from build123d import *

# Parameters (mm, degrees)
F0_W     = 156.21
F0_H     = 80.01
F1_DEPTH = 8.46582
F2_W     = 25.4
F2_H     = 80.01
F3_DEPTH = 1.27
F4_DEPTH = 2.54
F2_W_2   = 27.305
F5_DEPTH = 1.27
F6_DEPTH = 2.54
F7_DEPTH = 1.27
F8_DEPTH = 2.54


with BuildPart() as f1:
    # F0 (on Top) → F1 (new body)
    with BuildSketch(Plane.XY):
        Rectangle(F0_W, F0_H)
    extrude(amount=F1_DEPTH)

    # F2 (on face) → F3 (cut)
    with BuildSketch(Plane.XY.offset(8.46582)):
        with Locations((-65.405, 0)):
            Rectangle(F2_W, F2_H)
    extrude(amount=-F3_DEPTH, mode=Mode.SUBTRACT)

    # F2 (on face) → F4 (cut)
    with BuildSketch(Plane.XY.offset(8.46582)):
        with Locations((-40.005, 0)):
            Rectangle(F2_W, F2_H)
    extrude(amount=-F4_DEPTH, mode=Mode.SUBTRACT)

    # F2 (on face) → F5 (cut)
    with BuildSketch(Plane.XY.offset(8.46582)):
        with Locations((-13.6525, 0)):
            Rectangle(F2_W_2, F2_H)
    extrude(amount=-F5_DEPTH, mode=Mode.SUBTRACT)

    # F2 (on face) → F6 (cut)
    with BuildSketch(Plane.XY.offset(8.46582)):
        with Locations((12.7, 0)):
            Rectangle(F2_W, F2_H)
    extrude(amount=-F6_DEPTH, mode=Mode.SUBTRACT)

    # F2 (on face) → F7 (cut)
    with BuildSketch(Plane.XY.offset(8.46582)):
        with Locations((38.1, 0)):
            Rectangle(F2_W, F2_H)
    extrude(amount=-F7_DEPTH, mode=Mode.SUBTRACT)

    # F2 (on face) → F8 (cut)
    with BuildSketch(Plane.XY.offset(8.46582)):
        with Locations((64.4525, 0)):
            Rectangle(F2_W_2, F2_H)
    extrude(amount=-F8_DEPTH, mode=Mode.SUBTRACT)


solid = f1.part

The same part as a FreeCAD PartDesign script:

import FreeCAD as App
import Part
import Sketcher
from FreeCAD import Vector
Q = App.Units.Quantity

doc = App.newDocument("Part")
body = doc.addObject("PartDesign::Body", "Body")

# Sketch on XY plane
sketch1 = doc.addObject("Sketcher::SketchObject", "Sketch")
body.addObject(sketch1)
sketch1.AttachmentSupport = (doc.XY_Plane, [""])
sketch1.MapMode = "FlatFace"
sketch1.addGeometry([
    Part.LineSegment(Vector(-78, 40, 0), Vector(-78, -40, 0)),
    Part.LineSegment(Vector(-78, -40, 0), Vector(78, -40, 0)),
    Part.LineSegment(Vector(78, -40, 0), Vector(78, 40, 0)),
    Part.LineSegment(Vector(78, 40, 0), Vector(-78, 40, 0)),
], False)
sketch1.addConstraint([
    Sketcher.Constraint("Coincident", 0, 2, 1, 1),
    Sketcher.Constraint("Coincident", 1, 2, 2, 1),
    Sketcher.Constraint("Coincident", 2, 2, 3, 1),
    Sketcher.Constraint("Coincident", 3, 2, 0, 1),
    Sketcher.Constraint("Vertical", 0),
    Sketcher.Constraint("Horizontal", 1),
    Sketcher.Constraint("Vertical", 2),
    Sketcher.Constraint("Horizontal", 3),
    Sketcher.Constraint("Symmetric", 0, 2, 2, 2, -1, 1),
    Sketcher.Constraint("DistanceX", 1, 1, 1, 2, Q("6.15 in")),
    Sketcher.Constraint("DistanceY", 0, 2, 0, 1, Q("3.15 in")),
])
pad1 = doc.addObject("PartDesign::Pad", "Pad")
body.addObject(pad1)
pad1.Profile = sketch1
pad1.Length = Q("0.3333 in")

# Sketch on XY plane
sketch2 = doc.addObject("Sketcher::SketchObject", "Sketch001")
body.addObject(sketch2)
sketch2.AttachmentSupport = (doc.XY_Plane, [""])
sketch2.MapMode = "FlatFace"
sketch2.AttachmentOffset = App.Placement(Vector(0, 0, 0.3333 * 25.4), App.Rotation())
sketch2.addGeometry([
    Part.LineSegment(Vector(-78, 40, 0), Vector(-78, -40, 0)),
    Part.LineSegment(Vector(-78, -40, 0), Vector(-53, -40, 0)),
    Part.LineSegment(Vector(-53, -40, 0), Vector(-53, 40, 0)),
    Part.LineSegment(Vector(-53, 40, 0), Vector(-78, 40, 0)),
], False)
sketch2.addConstraint([
    Sketcher.Constraint("Coincident", 0, 2, 1, 1),
    Sketcher.Constraint("Coincident", 1, 2, 2, 1),
    Sketcher.Constraint("Coincident", 2, 2, 3, 1),
    Sketcher.Constraint("Coincident", 3, 2, 0, 1),
    Sketcher.Constraint("Vertical", 0),
    Sketcher.Constraint("Horizontal", 1),
    Sketcher.Constraint("Vertical", 2),
    Sketcher.Constraint("Horizontal", 3),
    Sketcher.Constraint("DistanceX", 1, 1, 1, 2, Q("1 in")),
    Sketcher.Constraint("DistanceY", 0, 2, 0, 1, Q("3.15 in")),
    Sketcher.Constraint("DistanceX", 0, 2, -1, 1, Q("3.075 in")),
    Sketcher.Constraint("DistanceY", 0, 2, -1, 1, Q("1.575 in")),
])
pocket1 = doc.addObject("PartDesign::Pocket", "Pocket")
body.addObject(pocket1)
pocket1.Profile = sketch2
pocket1.Length = Q("0.05 in")

# Sketch on XY plane
sketch3 = doc.addObject("Sketcher::SketchObject", "Sketch002")
body.addObject(sketch3)
sketch3.AttachmentSupport = (doc.XY_Plane, [""])
sketch3.MapMode = "FlatFace"
sketch3.AttachmentOffset = App.Placement(Vector(0, 0, 0.3333 * 25.4), App.Rotation())
sketch3.addGeometry([
    Part.LineSegment(Vector(-53, 40, 0), Vector(-53, -40, 0)),
    Part.LineSegment(Vector(-53, -40, 0), Vector(-27, -40, 0)),
    Part.LineSegment(Vector(-27, -40, 0), Vector(-27, 40, 0)),
    Part.LineSegment(Vector(-27, 40, 0), Vector(-53, 40, 0)),
], False)
sketch3.addConstraint([
    Sketcher.Constraint("Coincident", 0, 2, 1, 1),
    Sketcher.Constraint("Coincident", 1, 2, 2, 1),
    Sketcher.Constraint("Coincident", 2, 2, 3, 1),
    Sketcher.Constraint("Coincident", 3, 2, 0, 1),
    Sketcher.Constraint("Vertical", 0),
    Sketcher.Constraint("Horizontal", 1),
    Sketcher.Constraint("Vertical", 2),
    Sketcher.Constraint("Horizontal", 3),
    Sketcher.Constraint("DistanceX", 1, 1, 1, 2, Q("1 in")),
    Sketcher.Constraint("DistanceY", 0, 2, 0, 1, Q("3.15 in")),
    Sketcher.Constraint("DistanceX", 0, 2, -1, 1, Q("2.075 in")),
    Sketcher.Constraint("DistanceY", 0, 2, -1, 1, Q("1.575 in")),
])
pocket2 = doc.addObject("PartDesign::Pocket", "Pocket001")
body.addObject(pocket2)
pocket2.Profile = sketch3
pocket2.Length = Q("0.1 in")

# Sketch on XY plane
sketch4 = doc.addObject("Sketcher::SketchObject", "Sketch003")
body.addObject(sketch4)
sketch4.AttachmentSupport = (doc.XY_Plane, [""])
sketch4.MapMode = "FlatFace"
sketch4.AttachmentOffset = App.Placement(Vector(0, 0, 0.3333 * 25.4), App.Rotation())
sketch4.addGeometry([
    Part.LineSegment(Vector(-27, 40, 0), Vector(-27, -40, 0)),
    Part.LineSegment(Vector(-27, -40, 0), Vector(0, -40, 0)),
    Part.LineSegment(Vector(0, -40, 0), Vector(0, 40, 0)),
    Part.LineSegment(Vector(0, 40, 0), Vector(-27, 40, 0)),
], False)
sketch4.addConstraint([
    Sketcher.Constraint("Coincident", 0, 2, 1, 1),
    Sketcher.Constraint("Coincident", 1, 2, 2, 1),
    Sketcher.Constraint("Coincident", 2, 2, 3, 1),
    Sketcher.Constraint("Coincident", 3, 2, 0, 1),
    Sketcher.Constraint("Vertical", 0),
    Sketcher.Constraint("Horizontal", 1),
    Sketcher.Constraint("Vertical", 2),
    Sketcher.Constraint("Horizontal", 3),
    Sketcher.Constraint("Symmetric", 1, 2, 2, 2, -1, 1),
    Sketcher.Constraint("DistanceY", 0, 2, 0, 1, Q("3.15 in")),
    Sketcher.Constraint("DistanceX", 1, 1, 1, 2, Q("1.075 in")),
])
pocket3 = doc.addObject("PartDesign::Pocket", "Pocket002")
body.addObject(pocket3)
pocket3.Profile = sketch4
pocket3.Length = Q("0.05 in")

# Sketch on XY plane
sketch5 = doc.addObject("Sketcher::SketchObject", "Sketch004")
body.addObject(sketch5)
sketch5.AttachmentSupport = (doc.XY_Plane, [""])
sketch5.MapMode = "FlatFace"
sketch5.AttachmentOffset = App.Placement(Vector(0, 0, 0.3333 * 25.4), App.Rotation())
sketch5.addGeometry([
    Part.LineSegment(Vector(0, 40, 0), Vector(0, -40, 0)),
    Part.LineSegment(Vector(0, -40, 0), Vector(25, -40, 0)),
    Part.LineSegment(Vector(25, -40, 0), Vector(25, 40, 0)),
    Part.LineSegment(Vector(25, 40, 0), Vector(0, 40, 0)),
], False)
sketch5.addConstraint([
    Sketcher.Constraint("Coincident", 0, 2, 1, 1),
    Sketcher.Constraint("Coincident", 1, 2, 2, 1),
    Sketcher.Constraint("Coincident", 2, 2, 3, 1),
    Sketcher.Constraint("Coincident", 3, 2, 0, 1),
    Sketcher.Constraint("Vertical", 0),
    Sketcher.Constraint("Horizontal", 1),
    Sketcher.Constraint("Vertical", 2),
    Sketcher.Constraint("Horizontal", 3),
    Sketcher.Constraint("Symmetric", 0, 2, 3, 2, -1, 1),
    Sketcher.Constraint("DistanceX", 1, 1, 1, 2, Q("1 in")),
    Sketcher.Constraint("DistanceY", 0, 2, 0, 1, Q("3.15 in")),
])
pocket4 = doc.addObject("PartDesign::Pocket", "Pocket003")
body.addObject(pocket4)
pocket4.Profile = sketch5
pocket4.Length = Q("0.1 in")

# Sketch on XY plane
sketch6 = doc.addObject("Sketcher::SketchObject", "Sketch005")
body.addObject(sketch6)
sketch6.AttachmentSupport = (doc.XY_Plane, [""])
sketch6.MapMode = "FlatFace"
sketch6.AttachmentOffset = App.Placement(Vector(0, 0, 0.3333 * 25.4), App.Rotation())
sketch6.addGeometry([
    Part.LineSegment(Vector(25, 40, 0), Vector(25, -40, 0)),
    Part.LineSegment(Vector(25, -40, 0), Vector(51, -40, 0)),
    Part.LineSegment(Vector(51, -40, 0), Vector(51, 40, 0)),
    Part.LineSegment(Vector(51, 40, 0), Vector(25, 40, 0)),
], False)
sketch6.addConstraint([
    Sketcher.Constraint("Coincident", 0, 2, 1, 1),
    Sketcher.Constraint("Coincident", 1, 2, 2, 1),
    Sketcher.Constraint("Coincident", 2, 2, 3, 1),
    Sketcher.Constraint("Coincident", 3, 2, 0, 1),
    Sketcher.Constraint("Vertical", 0),
    Sketcher.Constraint("Horizontal", 1),
    Sketcher.Constraint("Vertical", 2),
    Sketcher.Constraint("Horizontal", 3),
    Sketcher.Constraint("DistanceX", 1, 1, 1, 2, Q("1 in")),
    Sketcher.Constraint("DistanceX", -1, 1, 0, 2, Q("1 in")),
    Sketcher.Constraint("DistanceY", 0, 2, 0, 1, Q("3.15 in")),
    Sketcher.Constraint("DistanceY", 0, 2, -1, 1, Q("1.575 in")),
])
pocket5 = doc.addObject("PartDesign::Pocket", "Pocket004")
body.addObject(pocket5)
pocket5.Profile = sketch6
pocket5.Length = Q("0.05 in")

# Sketch on XY plane
sketch7 = doc.addObject("Sketcher::SketchObject", "Sketch006")
body.addObject(sketch7)
sketch7.AttachmentSupport = (doc.XY_Plane, [""])
sketch7.MapMode = "FlatFace"
sketch7.AttachmentOffset = App.Placement(Vector(0, 0, 0.3333 * 25.4), App.Rotation())
sketch7.addGeometry([
    Part.LineSegment(Vector(51, 40, 0), Vector(51, -40, 0)),
    Part.LineSegment(Vector(51, -40, 0), Vector(78, -40, 0)),
    Part.LineSegment(Vector(78, -40, 0), Vector(78, 40, 0)),
    Part.LineSegment(Vector(78, 40, 0), Vector(51, 40, 0)),
], False)
sketch7.addConstraint([
    Sketcher.Constraint("Coincident", 0, 2, 1, 1),
    Sketcher.Constraint("Coincident", 1, 2, 2, 1),
    Sketcher.Constraint("Coincident", 2, 2, 3, 1),
    Sketcher.Constraint("Coincident", 3, 2, 0, 1),
    Sketcher.Constraint("Vertical", 0),
    Sketcher.Constraint("Horizontal", 1),
    Sketcher.Constraint("Vertical", 2),
    Sketcher.Constraint("Horizontal", 3),
    Sketcher.Constraint("DistanceX", -1, 1, 0, 2, Q("2 in")),
    Sketcher.Constraint("DistanceY", 0, 2, 0, 1, Q("3.15 in")),
    Sketcher.Constraint("DistanceX", 1, 1, 1, 2, Q("1.075 in")),
    Sketcher.Constraint("DistanceY", 0, 2, -1, 1, Q("1.575 in")),
])
pocket6 = doc.addObject("PartDesign::Pocket", "Pocket005")
body.addObject(pocket6)
pocket6.Profile = sketch7
pocket6.Length = Q("0.1 in")

doc.recompute()
